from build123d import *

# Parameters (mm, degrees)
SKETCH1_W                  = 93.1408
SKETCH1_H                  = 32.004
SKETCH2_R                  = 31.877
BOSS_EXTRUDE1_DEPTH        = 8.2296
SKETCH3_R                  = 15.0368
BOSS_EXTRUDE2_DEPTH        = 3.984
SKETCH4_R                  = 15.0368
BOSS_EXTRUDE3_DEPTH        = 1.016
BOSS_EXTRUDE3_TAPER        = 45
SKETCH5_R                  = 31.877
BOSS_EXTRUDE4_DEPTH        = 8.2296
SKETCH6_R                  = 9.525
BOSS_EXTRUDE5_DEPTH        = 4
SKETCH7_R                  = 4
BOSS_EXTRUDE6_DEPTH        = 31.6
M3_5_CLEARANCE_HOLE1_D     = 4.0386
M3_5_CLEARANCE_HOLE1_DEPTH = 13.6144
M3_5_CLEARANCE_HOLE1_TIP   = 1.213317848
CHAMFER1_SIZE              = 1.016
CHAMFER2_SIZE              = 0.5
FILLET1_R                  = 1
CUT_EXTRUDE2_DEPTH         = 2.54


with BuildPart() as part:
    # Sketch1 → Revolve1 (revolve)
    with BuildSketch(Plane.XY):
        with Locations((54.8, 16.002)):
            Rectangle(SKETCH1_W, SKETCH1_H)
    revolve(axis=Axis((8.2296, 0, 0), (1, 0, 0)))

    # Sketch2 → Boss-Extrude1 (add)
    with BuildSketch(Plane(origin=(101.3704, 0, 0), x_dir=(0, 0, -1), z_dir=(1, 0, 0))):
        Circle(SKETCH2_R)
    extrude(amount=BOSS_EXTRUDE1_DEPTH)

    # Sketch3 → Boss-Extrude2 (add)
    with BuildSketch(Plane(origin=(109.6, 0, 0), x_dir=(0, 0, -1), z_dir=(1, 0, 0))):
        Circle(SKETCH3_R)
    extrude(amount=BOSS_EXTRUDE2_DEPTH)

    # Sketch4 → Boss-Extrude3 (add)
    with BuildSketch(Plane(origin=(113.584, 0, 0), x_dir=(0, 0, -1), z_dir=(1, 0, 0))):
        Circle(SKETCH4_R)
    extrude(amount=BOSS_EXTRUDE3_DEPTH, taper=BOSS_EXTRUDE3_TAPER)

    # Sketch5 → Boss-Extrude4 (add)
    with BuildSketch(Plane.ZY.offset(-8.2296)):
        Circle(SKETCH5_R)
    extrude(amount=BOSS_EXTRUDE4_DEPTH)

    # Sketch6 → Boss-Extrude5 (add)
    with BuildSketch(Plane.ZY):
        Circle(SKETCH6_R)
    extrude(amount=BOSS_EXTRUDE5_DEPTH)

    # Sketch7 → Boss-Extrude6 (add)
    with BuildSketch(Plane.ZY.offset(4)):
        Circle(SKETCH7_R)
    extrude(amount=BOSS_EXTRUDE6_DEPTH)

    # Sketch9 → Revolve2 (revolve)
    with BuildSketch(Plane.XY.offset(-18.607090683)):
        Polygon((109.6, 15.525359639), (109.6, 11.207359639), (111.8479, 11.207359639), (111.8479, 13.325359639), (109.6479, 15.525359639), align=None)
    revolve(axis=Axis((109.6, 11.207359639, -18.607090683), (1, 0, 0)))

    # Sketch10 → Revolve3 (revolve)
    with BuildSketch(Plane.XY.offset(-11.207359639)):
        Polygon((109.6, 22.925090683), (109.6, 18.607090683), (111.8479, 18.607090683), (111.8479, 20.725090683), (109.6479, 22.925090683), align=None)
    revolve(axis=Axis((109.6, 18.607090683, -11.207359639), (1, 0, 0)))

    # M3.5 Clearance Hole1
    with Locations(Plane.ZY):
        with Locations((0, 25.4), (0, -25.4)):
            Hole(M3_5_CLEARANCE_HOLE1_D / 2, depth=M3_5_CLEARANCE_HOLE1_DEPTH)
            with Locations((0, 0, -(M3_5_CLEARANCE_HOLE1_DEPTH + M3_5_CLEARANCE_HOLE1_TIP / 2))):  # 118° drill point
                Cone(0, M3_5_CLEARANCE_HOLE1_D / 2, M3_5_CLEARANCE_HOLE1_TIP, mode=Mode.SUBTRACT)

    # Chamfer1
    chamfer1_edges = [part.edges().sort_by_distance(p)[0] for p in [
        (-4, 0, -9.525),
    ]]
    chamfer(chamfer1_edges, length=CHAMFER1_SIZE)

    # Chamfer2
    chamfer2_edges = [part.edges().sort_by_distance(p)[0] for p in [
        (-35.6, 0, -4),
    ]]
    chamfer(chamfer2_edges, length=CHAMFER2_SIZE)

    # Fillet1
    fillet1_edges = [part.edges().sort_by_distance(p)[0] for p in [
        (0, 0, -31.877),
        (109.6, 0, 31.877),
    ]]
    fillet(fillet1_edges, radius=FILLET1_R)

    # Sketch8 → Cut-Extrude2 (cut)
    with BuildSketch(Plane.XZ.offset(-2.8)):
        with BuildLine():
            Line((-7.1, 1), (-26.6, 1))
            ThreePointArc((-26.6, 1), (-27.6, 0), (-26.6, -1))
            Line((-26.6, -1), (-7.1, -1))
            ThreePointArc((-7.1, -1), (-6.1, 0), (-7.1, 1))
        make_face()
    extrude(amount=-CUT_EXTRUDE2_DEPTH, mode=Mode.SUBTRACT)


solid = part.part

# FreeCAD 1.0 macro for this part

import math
import FreeCAD as App
import Part
import Sketcher
Q = App.Units.Quantity


def edges_at(feature, points):
    """Names of the edges that pass closest to the given points."""
    edges = feature.Shape.Edges
    near = lambda p: min(range(len(edges)), key=lambda i: edges[i].distToShape(Part.Vertex(*p))[0])
    return sorted({f"Edge{near(p) + 1}" for p in points})

doc = App.newDocument("Part")
body = doc.addObject("PartDesign::Body", "Body")

# Sketch on XY plane
sketch1 = body.newObject("Sketcher::SketchObject", "Sketch")
sketch1.AttachmentSupport = (doc.getObject("XY_Plane"), [""])
sketch1.MapMode = "FlatFace"
sketch1.addGeometry([
    Part.LineSegment(App.Vector(8.2296, 32.004, 0), App.Vector(8.2296, 0, 0)),
    Part.LineSegment(App.Vector(8.2296, 0, 0), App.Vector(101.3704, 0, 0)),
    Part.LineSegment(App.Vector(101.3704, 0, 0), App.Vector(101.3704, 32.004, 0)),
    Part.LineSegment(App.Vector(101.3704, 32.004, 0), App.Vector(8.2296, 32.004, 0)),
], False)
sketch1.addConstraint([
    Sketcher.Constraint("Coincident", 0, 2, 1, 1),
    Sketcher.Constraint("Coincident", 1, 2, 2, 1),
    Sketcher.Constraint("Coincident", 2, 2, 3, 1),
    Sketcher.Constraint("Coincident", 3, 2, 0, 1),
    Sketcher.Constraint("Vertical", 0),
    Sketcher.Constraint("Horizontal", 1),
    Sketcher.Constraint("Vertical", 2),
    Sketcher.Constraint("Horizontal", 3),
    Sketcher.Constraint("PointOnObject", 0, 2, -1),
    Sketcher.Constraint("DistanceY", 0, 2, 0, 1, Q("1.26 in")),
    Sketcher.Constraint("DistanceX", -1, 1, 0, 2, Q("0.324 in")),
    Sketcher.Constraint("DistanceX", 1, 1, 1, 2, Q("93.1408 mm")),
])
revolution = body.newObject("PartDesign::Revolution", "Revolution")
revolution.Profile = sketch1
revolution.ReferenceAxis = (sketch1, ["H_Axis"])
revolution.Angle = 360

# Sketch on YZ plane
sketch2 = body.newObject("Sketcher::SketchObject", "Sketch001")
sketch2.AttachmentSupport = (doc.getObject("YZ_Plane"), [""])
sketch2.MapMode = "FlatFace"
sketch2.AttachmentOffset = App.Placement(App.Vector(0, 0, 101.3704), App.Rotation())
sketch2.addGeometry(Part.Circle(App.Vector(0, 0, 0), App.Vector(0, 0, 1), 31.877), False)
sketch2.addConstraint([
    Sketcher.Constraint("Coincident", 0, 3, -1, 1),
    Sketcher.Constraint("Diameter", 0, Q("2.51 in")),
])
pad1 = body.newObject("PartDesign::Pad", "Pad")
pad1.Profile = sketch2
pad1.Length = Q("0.324 in")

# Sketch on YZ plane
sketch3 = body.newObject("Sketcher::SketchObject", "Sketch002")
sketch3.AttachmentSupport = (doc.getObject("YZ_Plane"), [""])
sketch3.MapMode = "FlatFace"
sketch3.AttachmentOffset = App.Placement(App.Vector(0, 0, 109.6), App.Rotation())
sketch3.addGeometry(Part.Circle(App.Vector(0, 0, 0), App.Vector(0, 0, 1), 15.0368), False)
sketch3.addConstraint([
    Sketcher.Constraint("Coincident", 0, 3, -1, 1),
    Sketcher.Constraint("Diameter", 0, Q("1.184 in")),
])
pad2 = body.newObject("PartDesign::Pad", "Pad001")
pad2.Profile = sketch3
pad2.Length = 3.984

# Sketch on YZ plane
sketch4 = body.newObject("Sketcher::SketchObject", "Sketch003")
sketch4.AttachmentSupport = (doc.getObject("YZ_Plane"), [""])
sketch4.MapMode = "FlatFace"
sketch4.AttachmentOffset = App.Placement(App.Vector(0, 0, 113.584), App.Rotation())
sketch4.addGeometry(Part.Circle(App.Vector(0, 0, 0), App.Vector(0, 0, 1), 15.0368), False)
sketch4.addConstraint([
    Sketcher.Constraint("Coincident", 0, 3, -1, 1),
    Sketcher.Constraint("Diameter", 0, Q("1.184 in")),
])
pad3 = body.newObject("PartDesign::Pad", "Pad002")
pad3.Profile = sketch4
pad3.Length = Q("0.04 in")
pad3.TaperAngle = -45

# Sketch on YZ plane
sketch5 = body.newObject("Sketcher::SketchObject", "Sketch004")
sketch5.AttachmentSupport = (doc.getObject("YZ_Plane"), [""])
sketch5.MapMode = "FlatFace"
sketch5.AttachmentOffset = App.Placement(App.Vector(0, 0, 0.324 * 25.4), App.Rotation())
sketch5.addGeometry(Part.Circle(App.Vector(0, 0, 0), App.Vector(0, 0, 1), 31.877), False)
sketch5.addConstraint([
    Sketcher.Constraint("Coincident", 0, 3, -1, 1),
    Sketcher.Constraint("Diameter", 0, Q("2.51 in")),
])
pad4 = body.newObject("PartDesign::Pad", "Pad003")
pad4.Profile = sketch5
pad4.Length = Q("0.324 in")
pad4.Reversed = True

# Sketch on YZ plane
sketch6 = body.newObject("Sketcher::SketchObject", "Sketch005")
sketch6.AttachmentSupport = (doc.getObject("YZ_Plane"), [""])
sketch6.MapMode = "FlatFace"
sketch6.addGeometry(Part.Circle(App.Vector(0, 0, 0), App.Vector(0, 0, 1), 9.525), False)
sketch6.addConstraint([
    Sketcher.Constraint("Coincident", 0, 3, -1, 1),
    Sketcher.Constraint("Diameter", 0, Q("0.75 in")),
])
pad5 = body.newObject("PartDesign::Pad", "Pad004")
pad5.Profile = sketch6
pad5.Length = 4
pad5.Reversed = True

# Sketch on YZ plane
sketch7 = body.newObject("Sketcher::SketchObject", "Sketch006")
sketch7.AttachmentSupport = (doc.getObject("YZ_Plane"), [""])
sketch7.MapMode = "FlatFace"
sketch7.AttachmentOffset = App.Placement(App.Vector(0, 0, -4), App.Rotation())
sketch7.addGeometry(Part.Circle(App.Vector(0, 0, 0), App.Vector(0, 0, 1), 4), False)
sketch7.addConstraint([
    Sketcher.Constraint("Coincident", 0, 3, -1, 1),
    Sketcher.Constraint("Diameter", 0, Q("8 mm")),
])
pad6 = body.newObject("PartDesign::Pad", "Pad005")
pad6.Profile = sketch7
pad6.Length = 31.6
pad6.Reversed = True

# Sketch on XY plane
sketch8 = body.newObject("Sketcher::SketchObject", "Sketch007")
sketch8.AttachmentSupport = (doc.getObject("XY_Plane"), [""])
sketch8.MapMode = "FlatFace"
sketch8.AttachmentOffset = App.Placement(App.Vector(0, 0, -18.607091), App.Rotation())
sketch8.addGeometry([
    Part.LineSegment(App.Vector(109.6, 15.52536, 0), App.Vector(109.6, 11.20736, 0)),  # 0
    Part.LineSegment(App.Vector(109.6, 11.20736, 0), App.Vector(111.8479, 11.20736, 0)),  # 1
    Part.LineSegment(App.Vector(111.8479, 11.20736, 0), App.Vector(111.8479, 13.32536, 0)),  # 2
    Part.LineSegment(App.Vector(111.8479, 13.32536, 0), App.Vector(109.6479, 15.52536, 0)),  # 3
    Part.LineSegment(App.Vector(109.6479, 15.52536, 0), App.Vector(109.6, 15.52536, 0)),  # 4
], False)
sketch8.addGeometry(Part.LineSegment(App.Vector(109.6, 11.20736, 0), App.Vector(111.8479, 11.20736, 0)), True)  # axis
sketch8.addConstraint([
    Sketcher.Constraint("Coincident", 0, 2, 1, 1),
    Sketcher.Constraint("Coincident", 1, 2, 2, 1),
    Sketcher.Constraint("Coincident", 2, 2, 3, 1),
    Sketcher.Constraint("Coincident", 3, 2, 4, 1),
    Sketcher.Constraint("Coincident", 4, 2, 0, 1),
    Sketcher.Constraint("Vertical", 0),
    Sketcher.Constraint("Horizontal", 1),
    Sketcher.Constraint("Vertical", 2),
    Sketcher.Constraint("Horizontal", 4),
    Sketcher.Constraint("Horizontal", 5),
    Sketcher.Constraint("Coincident", 5, 1, 0, 2),
    Sketcher.Constraint("Vertical", 2, 2, 5, 2),
    Sketcher.Constraint("Angle", 3, Q("135 deg")),
    Sketcher.Constraint("DistanceY", 0, 2, 0, 1, Q("0.17 in")),
    Sketcher.Constraint("DistanceX", 1, 1, 1, 2, Q("0.0885 in")),
    Sketcher.Constraint("DistanceX", 4, 2, 4, 1, Q("0.0479 mm")),
    Sketcher.Constraint("DistanceX", -1, 1, 0, 2, Q("109.6 mm")),
    Sketcher.Constraint("DistanceY", -1, 1, 0, 2, Q("11.20736 mm")),
])
revolution2 = body.newObject("PartDesign::Revolution", "Revolution001")
revolution2.Profile = sketch8
revolution2.ReferenceAxis = (sketch8, ["Axis0"])
revolution2.Angle = 360

# Sketch on XY plane
sketch9 = body.newObject("Sketcher::SketchObject", "Sketch008")
sketch9.AttachmentSupport = (doc.getObject("XY_Plane"), [""])
sketch9.MapMode = "FlatFace"
sketch9.AttachmentOffset = App.Placement(App.Vector(0, 0, -11.20736), App.Rotation())
sketch9.addGeometry([
    Part.LineSegment(App.Vector(109.6, 22.925091, 0), App.Vector(109.6, 18.607091, 0)),  # 0
    Part.LineSegment(App.Vector(109.6, 18.607091, 0), App.Vector(111.8479, 18.607091, 0)),  # 1
    Part.LineSegment(App.Vector(111.8479, 18.607091, 0), App.Vector(111.8479, 20.725091, 0)),  # 2
    Part.LineSegment(App.Vector(111.8479, 20.725091, 0), App.Vector(109.6479, 22.925091, 0)),  # 3
    Part.LineSegment(App.Vector(109.6479, 22.925091, 0), App.Vector(109.6, 22.925091, 0)),  # 4
], False)
sketch9.addGeometry(Part.LineSegment(App.Vector(109.6, 18.607091, 0), App.Vector(111.8479, 18.607091, 0)), True)  # axis
sketch9.addConstraint([
    Sketcher.Constraint("Coincident", 0, 2, 1, 1),
    Sketcher.Constraint("Coincident", 1, 2, 2, 1),
    Sketcher.Constraint("Coincident", 2, 2, 3, 1),
    Sketcher.Constraint("Coincident", 3, 2, 4, 1),
    Sketcher.Constraint("Coincident", 4, 2, 0, 1),
    Sketcher.Constraint("Vertical", 0),
    Sketcher.Constraint("Horizontal", 1),
    Sketcher.Constraint("Vertical", 2),
    Sketcher.Constraint("Horizontal", 4),
    Sketcher.Constraint("Horizontal", 5),
    Sketcher.Constraint("Coincident", 5, 1, 0, 2),
    Sketcher.Constraint("Vertical", 2, 2, 5, 2),
    Sketcher.Constraint("Angle", 3, Q("135 deg")),
    Sketcher.Constraint("DistanceY", 0, 2, 0, 1, Q("0.17 in")),
    Sketcher.Constraint("DistanceX", 1, 1, 1, 2, Q("0.0885 in")),
    Sketcher.Constraint("DistanceX", 4, 2, 4, 1, Q("0.0479 mm")),
    Sketcher.Constraint("DistanceX", -1, 1, 0, 2, Q("109.6 mm")),
    Sketcher.Constraint("DistanceY", -1, 1, 0, 2, Q("18.607091 mm")),
])
revolution3 = body.newObject("PartDesign::Revolution", "Revolution002")
revolution3.Profile = sketch9
revolution3.ReferenceAxis = (sketch9, ["Axis0"])
revolution3.Angle = 360

# Sketch on YZ plane
sketch10 = body.newObject("Sketcher::SketchObject", "Sketch009")
sketch10.AttachmentSupport = (doc.getObject("YZ_Plane"), [""])
sketch10.MapMode = "FlatFace"
sketch10.addGeometry([
    Part.Circle(App.Vector(25.4, 0, 0), App.Vector(0, 0, 1), 2.0193),
    Part.Circle(App.Vector(-25.4, 0, 0), App.Vector(0, 0, 1), 2.0193),
], False)
sketch10.addConstraint([
    Sketcher.Constraint("Equal", 0, 1),
    Sketcher.Constraint("Symmetric", 0, 3, 1, 3, -1, 1),
    Sketcher.Constraint("PointOnObject", 0, 3, -1),
    Sketcher.Constraint("Diameter", 0, Q("0.159 in")),
    Sketcher.Constraint("DistanceX", -1, 1, 0, 3, Q("1 in")),
])
doc.recompute()
hole = body.newObject("PartDesign::Hole", "Hole")
hole.Profile = sketch10
hole.ThreadType = "None"
hole.Diameter = Q("0.159 in")
hole.DepthType = "Dimension"
hole.Depth = Q("0.536 in")
hole.DrillPoint = "Angled"
hole.DrillPointAngle = 118
hole.Reversed = True
doc.recompute()

chamfer = body.newObject("PartDesign::Chamfer", "Chamfer")
chamfer.Base = (hole, edges_at(hole, [(-4, 0, -9.525)]))
chamfer.Size = Q("0.04 in")
doc.recompute()

chamfer2 = body.newObject("PartDesign::Chamfer", "Chamfer001")
chamfer2.Base = (chamfer, edges_at(chamfer, [(-35.6, 0, -4)]))
chamfer2.Size = 0.5
doc.recompute()

fillet = body.newObject("PartDesign::Fillet", "Fillet")
fillet.Base = (chamfer2, edges_at(chamfer2, [(0, 0, -31.877), (109.6, 0, 31.877)]))
fillet.Radius = 1

# Sketch on XZ plane
sketch11 = body.newObject("Sketcher::SketchObject", "Sketch010")
sketch11.AttachmentSupport = (doc.getObject("XZ_Plane"), [""])
sketch11.MapMode = "FlatFace"
sketch11.AttachmentOffset = App.Placement(App.Vector(0, 0, -2.8), App.Rotation())
sketch11.addGeometry([
    Part.LineSegment(App.Vector(-7.1, 1, 0), App.Vector(-26.6, 1, 0)),
    Part.ArcOfCircle(Part.Circle(App.Vector(-26.6, 0, 0), App.Vector(0, 0, 1), 1), math.radians(90), math.radians(270)),
    Part.LineSegment(App.Vector(-26.6, -1, 0), App.Vector(-7.1, -1, 0)),
    Part.ArcOfCircle(Part.Circle(App.Vector(-7.1, 0, 0), App.Vector(0, 0, 1), 1), math.radians(-90), math.radians(90)),
], False)
sketch11.addConstraint([
    Sketcher.Constraint("Tangent", 0, 2, 1, 1),
    Sketcher.Constraint("Tangent", 1, 2, 2, 1),
    Sketcher.Constraint("Tangent", 2, 2, 3, 1),
    Sketcher.Constraint("Tangent", 3, 2, 0, 1),
    Sketcher.Constraint("Horizontal", 0),
    Sketcher.Constraint("Horizontal", 2),
    Sketcher.Constraint("PointOnObject", 1, 3, -1),
    Sketcher.Constraint("Radius", 1, Q("1 mm")),
    Sketcher.Constraint("DistanceX", 0, 2, 0, 1, Q("19.5 mm")),
    Sketcher.Constraint("DistanceX", 1, 3, -1, 1, Q("26.6 mm")),
])
pocket1 = body.newObject("PartDesign::Pocket", "Pocket")
pocket1.Profile = sketch11
pocket1.Length = Q("0.1 in")

doc.recompute()
